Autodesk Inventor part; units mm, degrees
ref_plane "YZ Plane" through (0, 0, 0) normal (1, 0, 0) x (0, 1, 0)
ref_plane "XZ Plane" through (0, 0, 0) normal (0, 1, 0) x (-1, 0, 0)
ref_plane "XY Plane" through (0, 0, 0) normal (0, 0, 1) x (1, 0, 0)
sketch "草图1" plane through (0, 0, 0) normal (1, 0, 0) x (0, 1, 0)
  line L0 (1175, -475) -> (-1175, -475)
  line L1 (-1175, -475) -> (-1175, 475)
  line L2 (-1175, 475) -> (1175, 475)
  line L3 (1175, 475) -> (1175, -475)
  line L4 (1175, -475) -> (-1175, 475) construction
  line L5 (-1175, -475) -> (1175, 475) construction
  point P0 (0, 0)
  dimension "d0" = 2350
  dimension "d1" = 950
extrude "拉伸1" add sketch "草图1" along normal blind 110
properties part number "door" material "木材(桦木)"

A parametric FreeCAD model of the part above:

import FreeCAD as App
import Part
import Sketcher
from FreeCAD import Vector
Q = App.Units.Quantity

doc = App.newDocument("Part")
body = doc.addObject("PartDesign::Body", "Body")

# Sketch on YZ plane
sketch1 = body.newObject("Sketcher::SketchObject", "Sketch")
sketch1.AttachmentSupport = (doc.getObject("YZ_Plane"), [""])
sketch1.MapMode = "FlatFace"
sketch1.addGeometry(Part.LineSegment(Vector(-1175, -475, 0), Vector(1175, -475, 0)), False)
sketch1.addGeometry(Part.LineSegment(Vector(1175, -475, 0), Vector(1175, 475, 0)), False)
sketch1.addGeometry(Part.LineSegment(Vector(1175, 475, 0), Vector(-1175, 475, 0)), False)
sketch1.addGeometry(Part.LineSegment(Vector(-1175, 475, 0), Vector(-1175, -475, 0)), False)
sketch1.addConstraint(Sketcher.Constraint("Coincident", 0, 2, 1, 1))
sketch1.addConstraint(Sketcher.Constraint("Coincident", 1, 2, 2, 1))
sketch1.addConstraint(Sketcher.Constraint("Coincident", 2, 2, 3, 1))
sketch1.addConstraint(Sketcher.Constraint("Coincident", 3, 2, 0, 1))
sketch1.addConstraint(Sketcher.Constraint("Horizontal", 0))
sketch1.addConstraint(Sketcher.Constraint("Vertical", 1))
sketch1.addConstraint(Sketcher.Constraint("Horizontal", 2))
sketch1.addConstraint(Sketcher.Constraint("Vertical", 3))
sketch1.addConstraint(Sketcher.Constraint("Symmetric", 0, 2, 2, 2, -1, 1))
sketch1.addConstraint(Sketcher.Constraint("DistanceX", 0, 1, 0, 2, Q("2350 mm")))
sketch1.addConstraint(Sketcher.Constraint("DistanceY", 1, 1, 1, 2, Q("950 mm")))
pad1 = body.newObject("PartDesign::Pad", "Pad")
pad1.Profile = sketch1
pad1.Length = 110

doc.recompute()
